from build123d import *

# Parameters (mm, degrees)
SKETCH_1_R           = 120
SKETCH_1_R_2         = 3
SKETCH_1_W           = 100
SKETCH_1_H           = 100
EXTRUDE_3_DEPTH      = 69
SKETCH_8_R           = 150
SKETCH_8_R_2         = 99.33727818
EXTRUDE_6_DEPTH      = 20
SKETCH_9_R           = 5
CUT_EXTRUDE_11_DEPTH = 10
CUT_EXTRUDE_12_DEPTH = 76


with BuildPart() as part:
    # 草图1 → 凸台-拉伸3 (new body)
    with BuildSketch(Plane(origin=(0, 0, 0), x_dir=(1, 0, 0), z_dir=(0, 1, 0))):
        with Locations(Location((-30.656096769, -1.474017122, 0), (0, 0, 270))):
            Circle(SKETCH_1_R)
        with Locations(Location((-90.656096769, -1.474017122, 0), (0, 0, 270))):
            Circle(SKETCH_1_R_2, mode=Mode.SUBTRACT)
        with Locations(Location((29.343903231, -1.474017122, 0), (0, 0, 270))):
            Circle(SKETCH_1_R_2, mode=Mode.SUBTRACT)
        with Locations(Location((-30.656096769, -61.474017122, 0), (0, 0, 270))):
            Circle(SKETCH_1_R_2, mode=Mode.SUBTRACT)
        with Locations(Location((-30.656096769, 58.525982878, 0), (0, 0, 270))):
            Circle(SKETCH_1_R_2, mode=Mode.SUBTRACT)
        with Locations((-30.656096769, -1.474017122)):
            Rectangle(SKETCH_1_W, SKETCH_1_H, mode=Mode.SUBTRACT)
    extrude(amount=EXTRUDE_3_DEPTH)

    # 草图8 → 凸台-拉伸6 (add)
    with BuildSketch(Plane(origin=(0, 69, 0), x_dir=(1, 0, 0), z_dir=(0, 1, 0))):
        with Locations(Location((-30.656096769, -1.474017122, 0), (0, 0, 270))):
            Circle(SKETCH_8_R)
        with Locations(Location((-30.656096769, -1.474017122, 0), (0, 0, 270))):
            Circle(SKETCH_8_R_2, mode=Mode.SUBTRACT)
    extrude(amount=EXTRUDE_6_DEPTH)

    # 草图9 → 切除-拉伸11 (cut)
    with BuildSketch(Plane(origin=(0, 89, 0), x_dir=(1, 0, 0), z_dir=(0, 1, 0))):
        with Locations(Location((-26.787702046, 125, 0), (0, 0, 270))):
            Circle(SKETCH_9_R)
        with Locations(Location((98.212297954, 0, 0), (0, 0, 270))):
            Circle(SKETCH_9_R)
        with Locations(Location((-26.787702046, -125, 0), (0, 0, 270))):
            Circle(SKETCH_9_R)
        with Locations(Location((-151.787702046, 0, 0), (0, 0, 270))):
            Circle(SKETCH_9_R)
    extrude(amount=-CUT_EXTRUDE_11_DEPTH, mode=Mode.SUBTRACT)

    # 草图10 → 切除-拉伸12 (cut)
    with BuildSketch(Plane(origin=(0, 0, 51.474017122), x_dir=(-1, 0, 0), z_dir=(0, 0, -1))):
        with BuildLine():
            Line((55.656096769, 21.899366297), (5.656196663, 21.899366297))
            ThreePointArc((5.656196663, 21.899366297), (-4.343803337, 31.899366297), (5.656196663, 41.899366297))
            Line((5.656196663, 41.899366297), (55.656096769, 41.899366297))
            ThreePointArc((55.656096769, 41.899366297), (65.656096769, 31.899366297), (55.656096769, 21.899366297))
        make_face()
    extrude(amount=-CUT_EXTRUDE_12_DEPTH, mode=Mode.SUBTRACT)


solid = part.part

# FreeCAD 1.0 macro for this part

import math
import FreeCAD as App
import Part
import Sketcher
from FreeCAD import Vector

doc = App.newDocument("Part")
params = doc.addObject("Spreadsheet::Sheet", "Params")
for row, (alias, value) in enumerate([
    ("sketch1_diameter", "240 mm"),
    ("sketch1_diameter2", "6 mm"),
    ("sketch1_width", "100 mm"),
    ("pad1_length", "69 mm"),
    ("sketch2_diameter", "300 mm"),
    ("pad2_length", "20 mm"),
    ("sketch3_diameter", "10 mm"),
    ("pocket1_length", "10 mm"),
    ("sketch4_radius", "10 mm"),
    ("pocket2_length", "76 mm"),
], start=1):
    params.set(f"A{row}", alias)
    params.set(f"B{row}", "=" + value)
    params.setAlias(f"B{row}", alias)

body = doc.addObject("PartDesign::Body", "Body")

sketch1 = doc.addObject("Sketcher::SketchObject", "Sketch")
body.addObject(sketch1)
sketch1.AttachmentSupport = (doc.XZ_Plane, [""])
sketch1.MapMode = "FlatFace"
sketch1.addGeometry([
    Part.Circle(Vector(-30.7, 1.5, 0), Vector(0, 0, 1), 120),
    Part.Circle(Vector(-30.7, -58.5, 0), Vector(0, 0, 1), 3),
    Part.Circle(Vector(-90.7, 1.5, 0), Vector(0, 0, 1), 3),
    Part.Circle(Vector(29.3, 1.5, 0), Vector(0, 0, 1), 3),
    Part.LineSegment(Vector(19.3, 51.5, 0), Vector(-80.7, 51.5, 0)),
    Part.LineSegment(Vector(-80.7, 51.5, 0), Vector(-80.7, -48.5, 0)),
    Part.LineSegment(Vector(-80.7, -48.5, 0), Vector(19.3, -48.5, 0)),
    Part.LineSegment(Vector(19.3, -48.5, 0), Vector(19.3, 51.5, 0)),
    Part.Circle(Vector(-30.7, 61.5, 0), Vector(0, 0, 1), 3),
], False)
sketch1.addConstraint([
    Sketcher.Constraint("Coincident", 4, 2, 5, 1),
    Sketcher.Constraint("Coincident", 5, 2, 6, 1),
    Sketcher.Constraint("Coincident", 6, 2, 7, 1),
    Sketcher.Constraint("Coincident", 7, 2, 4, 1),
    Sketcher.Constraint("Horizontal", 4),
    Sketcher.Constraint("Vertical", 5),
    Sketcher.Constraint("Horizontal", 6),
    Sketcher.Constraint("Vertical", 7),
    Sketcher.Constraint("Equal", 1, 2),
    Sketcher.Constraint("Equal", 2, 3),
    Sketcher.Constraint("Equal", 3, 8),
    Sketcher.Constraint("Horizontal", 0, 3, 2, 3),
    Sketcher.Constraint("Horizontal", 2, 3, 3, 3),
    Sketcher.Constraint("Vertical", 0, 3, 1, 3),
    Sketcher.Constraint("Vertical", 1, 3, 8, 3),
    Sketcher.Constraint("Equal", 6, 5),
    Sketcher.Constraint("Diameter", 0, 240.0),
    Sketcher.Constraint("Diameter", 1, 6.0),
    Sketcher.Constraint("DistanceX", 4, 2, 4, 1, 100.0),
    Sketcher.Constraint("DistanceY", 1, 3, 0, 3, 60.0),
    Sketcher.Constraint("DistanceX", 2, 3, 0, 3, 60.0),
    Sketcher.Constraint("DistanceX", 0, 3, 3, 3, 60.0),
    Sketcher.Constraint("DistanceY", 0, 3, 8, 3, 60.0),
    Sketcher.Constraint("DistanceX", 2, 3, 4, 2, 10.0),
    Sketcher.Constraint("DistanceY", 2, 3, 4, 2, 50.0),
    Sketcher.Constraint("DistanceX", 0, 3, -1, 1, 30.656097),
    Sketcher.Constraint("DistanceY", -1, 1, 0, 3, 1.474017),
])
sketch1.setExpression("Constraints[16]", "Params.sketch1_diameter")
sketch1.setExpression("Constraints[17]", "Params.sketch1_diameter2")
sketch1.setExpression("Constraints[18]", "Params.sketch1_width")
pad1 = doc.addObject("PartDesign::Pad", "Pad")
body.addObject(pad1)
pad1.Profile = sketch1
pad1.setExpression("Length", "Params.pad1_length")
pad1.Reversed = True

sketch2 = doc.addObject("Sketcher::SketchObject", "Sketch001")
body.addObject(sketch2)
sketch2.AttachmentSupport = (doc.XZ_Plane, [""])
sketch2.MapMode = "FlatFace"
sketch2.AttachmentOffset = App.Placement(Vector(0, 0, -69), App.Rotation())
sketch2.addGeometry([
    Part.Circle(Vector(-31, 1, 0), Vector(0, 0, 1), 150),
    Part.Circle(Vector(-31, 1, 0), Vector(0, 0, 1), 99),
], False)
sketch2.addConstraint([
    Sketcher.Constraint("Coincident", 1, 3, 0, 3),
    Sketcher.Constraint("Diameter", 0, 300.0),
    Sketcher.Constraint("Diameter", 1, 198.674556),
    Sketcher.Constraint("DistanceX", 0, 3, -1, 1, 30.656097),
    Sketcher.Constraint("DistanceY", -1, 1, 0, 3, 1.474017),
])
sketch2.setExpression("Constraints[1]", "Params.sketch2_diameter")
pad2 = doc.addObject("PartDesign::Pad", "Pad001")
body.addObject(pad2)
pad2.Profile = sketch2
pad2.setExpression("Length", "Params.pad2_length")
pad2.Reversed = True

sketch3 = doc.addObject("Sketcher::SketchObject", "Sketch002")
body.addObject(sketch3)
sketch3.AttachmentSupport = (doc.XZ_Plane, [""])
sketch3.MapMode = "FlatFace"
sketch3.AttachmentOffset = App.Placement(Vector(0, 0, -89), App.Rotation())
sketch3.addGeometry([
    Part.Circle(Vector(-27, -125, 0), Vector(0, 0, 1), 5),
    Part.Circle(Vector(98, 0, 0), Vector(0, 0, 1), 5),
    Part.Circle(Vector(-27, 125, 0), Vector(0, 0, 1), 5),
    Part.Circle(Vector(-152, 0, 0), Vector(0, 0, 1), 5),
], False)
sketch3.addConstraint([
    Sketcher.Constraint("Equal", 0, 1),
    Sketcher.Constraint("Equal", 1, 2),
    Sketcher.Constraint("Equal", 2, 3),
    Sketcher.Constraint("Symmetric", 0, 3, 2, 3, -1),
    Sketcher.Constraint("PointOnObject", 1, 3, -1),
    Sketcher.Constraint("PointOnObject", 3, 3, -1),
    Sketcher.Constraint("Diameter", 0, 10.0),
    Sketcher.Constraint("DistanceY", 0, 3, -1, 1, 125.0),
    Sketcher.Constraint("DistanceX", 0, 3, 1, 3, 125.0),
    Sketcher.Constraint("DistanceX", 3, 3, 0, 3, 125.0),
    Sketcher.Constraint("DistanceX", 0, 3, -1, 1, 26.787702),
])
sketch3.setExpression("Constraints[6]", "Params.sketch3_diameter")
pocket1 = doc.addObject("PartDesign::Pocket", "Pocket")
body.addObject(pocket1)
pocket1.Profile = sketch3
pocket1.setExpression("Length", "Params.pocket1_length")
pocket1.Reversed = True

sketch4 = doc.addObject("Sketcher::SketchObject", "Sketch003")
body.addObject(sketch4)
sketch4.AttachmentSupport = (doc.XY_Plane, [""])
sketch4.MapMode = "FlatFace"
sketch4.AttachmentOffset = App.Placement(Vector(0, 0, 51.474017), App.Rotation())
sketch4.addGeometry([
    Part.LineSegment(Vector(-6, 22, 0), Vector(-56, 22, 0)),
    Part.ArcOfCircle(Part.Circle(Vector(-56, 32, 0), Vector(0, 0, 1), 10), math.radians(90), math.radians(270)),
    Part.LineSegment(Vector(-56, 42, 0), Vector(-6, 42, 0)),
    Part.ArcOfCircle(Part.Circle(Vector(-6, 32, 0), Vector(0, 0, 1), 10), math.radians(-90), math.radians(90)),
], False)
sketch4.addConstraint([
    Sketcher.Constraint("Tangent", 0, 2, 1, 2),
    Sketcher.Constraint("Tangent", 1, 1, 2, 1),
    Sketcher.Constraint("Tangent", 2, 2, 3, 2),
    Sketcher.Constraint("Tangent", 3, 1, 0, 1),
    Sketcher.Constraint("Horizontal", 0),
    Sketcher.Constraint("Horizontal", 2),
    Sketcher.Constraint("Radius", 1, 10.0),
    Sketcher.Constraint("DistanceX", 0, 2, 0, 1, 49.9999),
    Sketcher.Constraint("DistanceX", 1, 3, -1, 1, 55.656097),
    Sketcher.Constraint("DistanceY", -1, 1, 1, 3, 31.899366),
])
sketch4.setExpression("Constraints[6]", "Params.sketch4_radius")
pocket2 = doc.addObject("PartDesign::Pocket", "Pocket001")
body.addObject(pocket2)
pocket2.Profile = sketch4
pocket2.setExpression("Length", "Params.pocket2_length")
pocket2.Reversed = True

doc.recompute()
